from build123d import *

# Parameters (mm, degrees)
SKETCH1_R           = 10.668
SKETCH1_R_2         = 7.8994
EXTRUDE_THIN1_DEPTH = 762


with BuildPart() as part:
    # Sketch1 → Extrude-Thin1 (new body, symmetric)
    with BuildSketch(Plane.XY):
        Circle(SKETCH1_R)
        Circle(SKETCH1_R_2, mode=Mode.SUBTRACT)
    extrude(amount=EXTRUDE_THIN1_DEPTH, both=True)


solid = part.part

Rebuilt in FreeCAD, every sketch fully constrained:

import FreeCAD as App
import Part
import Sketcher
Q = App.Units.Quantity

doc = App.newDocument("Part")
params = doc.addObject("Spreadsheet::Sheet", "Params")
for row, (alias, value) in enumerate([
    ("sketch1_diameter", "0.84 in"),
    ("sketch1_diameter2", "0.622 in"),
    ("pad1_length", "60 in"),
], start=1):
    params.set(f"A{row}", alias)
    params.set(f"B{row}", "=" + value)
    params.setAlias(f"B{row}", alias)

body = doc.addObject("PartDesign::Body", "Body")

# Sketch on XY plane
sketch1 = body.newObject("Sketcher::SketchObject", "Sketch")
sketch1.AttachmentSupport = (doc.getObject("XY_Plane"), [""])
sketch1.MapMode = "FlatFace"
sketch1.addGeometry(Part.Circle(App.Vector(0, 0, 0), App.Vector(0, 0, 1), 11), False)
sketch1.addGeometry(Part.Circle(App.Vector(0, 0, 0), App.Vector(0, 0, 1), 8), False)
sketch1.addConstraint(Sketcher.Constraint("Coincident", 0, 3, -1, 1))
sketch1.addConstraint(Sketcher.Constraint("Coincident", 1, 3, -1, 1))
sketch1.addConstraint(Sketcher.Constraint("Diameter", 0, Q("0.84 in")))
sketch1.addConstraint(Sketcher.Constraint("Diameter", 1, Q("0.622 in")))
sketch1.setExpression("Constraints[2]", "Params.sketch1_diameter")
sketch1.setExpression("Constraints[3]", "Params.sketch1_diameter2")
pad1 = body.newObject("PartDesign::Pad", "Pad")
pad1.Profile = sketch1
pad1.setExpression("Length", "Params.pad1_length")
pad1.Midplane = True

doc.recompute()
